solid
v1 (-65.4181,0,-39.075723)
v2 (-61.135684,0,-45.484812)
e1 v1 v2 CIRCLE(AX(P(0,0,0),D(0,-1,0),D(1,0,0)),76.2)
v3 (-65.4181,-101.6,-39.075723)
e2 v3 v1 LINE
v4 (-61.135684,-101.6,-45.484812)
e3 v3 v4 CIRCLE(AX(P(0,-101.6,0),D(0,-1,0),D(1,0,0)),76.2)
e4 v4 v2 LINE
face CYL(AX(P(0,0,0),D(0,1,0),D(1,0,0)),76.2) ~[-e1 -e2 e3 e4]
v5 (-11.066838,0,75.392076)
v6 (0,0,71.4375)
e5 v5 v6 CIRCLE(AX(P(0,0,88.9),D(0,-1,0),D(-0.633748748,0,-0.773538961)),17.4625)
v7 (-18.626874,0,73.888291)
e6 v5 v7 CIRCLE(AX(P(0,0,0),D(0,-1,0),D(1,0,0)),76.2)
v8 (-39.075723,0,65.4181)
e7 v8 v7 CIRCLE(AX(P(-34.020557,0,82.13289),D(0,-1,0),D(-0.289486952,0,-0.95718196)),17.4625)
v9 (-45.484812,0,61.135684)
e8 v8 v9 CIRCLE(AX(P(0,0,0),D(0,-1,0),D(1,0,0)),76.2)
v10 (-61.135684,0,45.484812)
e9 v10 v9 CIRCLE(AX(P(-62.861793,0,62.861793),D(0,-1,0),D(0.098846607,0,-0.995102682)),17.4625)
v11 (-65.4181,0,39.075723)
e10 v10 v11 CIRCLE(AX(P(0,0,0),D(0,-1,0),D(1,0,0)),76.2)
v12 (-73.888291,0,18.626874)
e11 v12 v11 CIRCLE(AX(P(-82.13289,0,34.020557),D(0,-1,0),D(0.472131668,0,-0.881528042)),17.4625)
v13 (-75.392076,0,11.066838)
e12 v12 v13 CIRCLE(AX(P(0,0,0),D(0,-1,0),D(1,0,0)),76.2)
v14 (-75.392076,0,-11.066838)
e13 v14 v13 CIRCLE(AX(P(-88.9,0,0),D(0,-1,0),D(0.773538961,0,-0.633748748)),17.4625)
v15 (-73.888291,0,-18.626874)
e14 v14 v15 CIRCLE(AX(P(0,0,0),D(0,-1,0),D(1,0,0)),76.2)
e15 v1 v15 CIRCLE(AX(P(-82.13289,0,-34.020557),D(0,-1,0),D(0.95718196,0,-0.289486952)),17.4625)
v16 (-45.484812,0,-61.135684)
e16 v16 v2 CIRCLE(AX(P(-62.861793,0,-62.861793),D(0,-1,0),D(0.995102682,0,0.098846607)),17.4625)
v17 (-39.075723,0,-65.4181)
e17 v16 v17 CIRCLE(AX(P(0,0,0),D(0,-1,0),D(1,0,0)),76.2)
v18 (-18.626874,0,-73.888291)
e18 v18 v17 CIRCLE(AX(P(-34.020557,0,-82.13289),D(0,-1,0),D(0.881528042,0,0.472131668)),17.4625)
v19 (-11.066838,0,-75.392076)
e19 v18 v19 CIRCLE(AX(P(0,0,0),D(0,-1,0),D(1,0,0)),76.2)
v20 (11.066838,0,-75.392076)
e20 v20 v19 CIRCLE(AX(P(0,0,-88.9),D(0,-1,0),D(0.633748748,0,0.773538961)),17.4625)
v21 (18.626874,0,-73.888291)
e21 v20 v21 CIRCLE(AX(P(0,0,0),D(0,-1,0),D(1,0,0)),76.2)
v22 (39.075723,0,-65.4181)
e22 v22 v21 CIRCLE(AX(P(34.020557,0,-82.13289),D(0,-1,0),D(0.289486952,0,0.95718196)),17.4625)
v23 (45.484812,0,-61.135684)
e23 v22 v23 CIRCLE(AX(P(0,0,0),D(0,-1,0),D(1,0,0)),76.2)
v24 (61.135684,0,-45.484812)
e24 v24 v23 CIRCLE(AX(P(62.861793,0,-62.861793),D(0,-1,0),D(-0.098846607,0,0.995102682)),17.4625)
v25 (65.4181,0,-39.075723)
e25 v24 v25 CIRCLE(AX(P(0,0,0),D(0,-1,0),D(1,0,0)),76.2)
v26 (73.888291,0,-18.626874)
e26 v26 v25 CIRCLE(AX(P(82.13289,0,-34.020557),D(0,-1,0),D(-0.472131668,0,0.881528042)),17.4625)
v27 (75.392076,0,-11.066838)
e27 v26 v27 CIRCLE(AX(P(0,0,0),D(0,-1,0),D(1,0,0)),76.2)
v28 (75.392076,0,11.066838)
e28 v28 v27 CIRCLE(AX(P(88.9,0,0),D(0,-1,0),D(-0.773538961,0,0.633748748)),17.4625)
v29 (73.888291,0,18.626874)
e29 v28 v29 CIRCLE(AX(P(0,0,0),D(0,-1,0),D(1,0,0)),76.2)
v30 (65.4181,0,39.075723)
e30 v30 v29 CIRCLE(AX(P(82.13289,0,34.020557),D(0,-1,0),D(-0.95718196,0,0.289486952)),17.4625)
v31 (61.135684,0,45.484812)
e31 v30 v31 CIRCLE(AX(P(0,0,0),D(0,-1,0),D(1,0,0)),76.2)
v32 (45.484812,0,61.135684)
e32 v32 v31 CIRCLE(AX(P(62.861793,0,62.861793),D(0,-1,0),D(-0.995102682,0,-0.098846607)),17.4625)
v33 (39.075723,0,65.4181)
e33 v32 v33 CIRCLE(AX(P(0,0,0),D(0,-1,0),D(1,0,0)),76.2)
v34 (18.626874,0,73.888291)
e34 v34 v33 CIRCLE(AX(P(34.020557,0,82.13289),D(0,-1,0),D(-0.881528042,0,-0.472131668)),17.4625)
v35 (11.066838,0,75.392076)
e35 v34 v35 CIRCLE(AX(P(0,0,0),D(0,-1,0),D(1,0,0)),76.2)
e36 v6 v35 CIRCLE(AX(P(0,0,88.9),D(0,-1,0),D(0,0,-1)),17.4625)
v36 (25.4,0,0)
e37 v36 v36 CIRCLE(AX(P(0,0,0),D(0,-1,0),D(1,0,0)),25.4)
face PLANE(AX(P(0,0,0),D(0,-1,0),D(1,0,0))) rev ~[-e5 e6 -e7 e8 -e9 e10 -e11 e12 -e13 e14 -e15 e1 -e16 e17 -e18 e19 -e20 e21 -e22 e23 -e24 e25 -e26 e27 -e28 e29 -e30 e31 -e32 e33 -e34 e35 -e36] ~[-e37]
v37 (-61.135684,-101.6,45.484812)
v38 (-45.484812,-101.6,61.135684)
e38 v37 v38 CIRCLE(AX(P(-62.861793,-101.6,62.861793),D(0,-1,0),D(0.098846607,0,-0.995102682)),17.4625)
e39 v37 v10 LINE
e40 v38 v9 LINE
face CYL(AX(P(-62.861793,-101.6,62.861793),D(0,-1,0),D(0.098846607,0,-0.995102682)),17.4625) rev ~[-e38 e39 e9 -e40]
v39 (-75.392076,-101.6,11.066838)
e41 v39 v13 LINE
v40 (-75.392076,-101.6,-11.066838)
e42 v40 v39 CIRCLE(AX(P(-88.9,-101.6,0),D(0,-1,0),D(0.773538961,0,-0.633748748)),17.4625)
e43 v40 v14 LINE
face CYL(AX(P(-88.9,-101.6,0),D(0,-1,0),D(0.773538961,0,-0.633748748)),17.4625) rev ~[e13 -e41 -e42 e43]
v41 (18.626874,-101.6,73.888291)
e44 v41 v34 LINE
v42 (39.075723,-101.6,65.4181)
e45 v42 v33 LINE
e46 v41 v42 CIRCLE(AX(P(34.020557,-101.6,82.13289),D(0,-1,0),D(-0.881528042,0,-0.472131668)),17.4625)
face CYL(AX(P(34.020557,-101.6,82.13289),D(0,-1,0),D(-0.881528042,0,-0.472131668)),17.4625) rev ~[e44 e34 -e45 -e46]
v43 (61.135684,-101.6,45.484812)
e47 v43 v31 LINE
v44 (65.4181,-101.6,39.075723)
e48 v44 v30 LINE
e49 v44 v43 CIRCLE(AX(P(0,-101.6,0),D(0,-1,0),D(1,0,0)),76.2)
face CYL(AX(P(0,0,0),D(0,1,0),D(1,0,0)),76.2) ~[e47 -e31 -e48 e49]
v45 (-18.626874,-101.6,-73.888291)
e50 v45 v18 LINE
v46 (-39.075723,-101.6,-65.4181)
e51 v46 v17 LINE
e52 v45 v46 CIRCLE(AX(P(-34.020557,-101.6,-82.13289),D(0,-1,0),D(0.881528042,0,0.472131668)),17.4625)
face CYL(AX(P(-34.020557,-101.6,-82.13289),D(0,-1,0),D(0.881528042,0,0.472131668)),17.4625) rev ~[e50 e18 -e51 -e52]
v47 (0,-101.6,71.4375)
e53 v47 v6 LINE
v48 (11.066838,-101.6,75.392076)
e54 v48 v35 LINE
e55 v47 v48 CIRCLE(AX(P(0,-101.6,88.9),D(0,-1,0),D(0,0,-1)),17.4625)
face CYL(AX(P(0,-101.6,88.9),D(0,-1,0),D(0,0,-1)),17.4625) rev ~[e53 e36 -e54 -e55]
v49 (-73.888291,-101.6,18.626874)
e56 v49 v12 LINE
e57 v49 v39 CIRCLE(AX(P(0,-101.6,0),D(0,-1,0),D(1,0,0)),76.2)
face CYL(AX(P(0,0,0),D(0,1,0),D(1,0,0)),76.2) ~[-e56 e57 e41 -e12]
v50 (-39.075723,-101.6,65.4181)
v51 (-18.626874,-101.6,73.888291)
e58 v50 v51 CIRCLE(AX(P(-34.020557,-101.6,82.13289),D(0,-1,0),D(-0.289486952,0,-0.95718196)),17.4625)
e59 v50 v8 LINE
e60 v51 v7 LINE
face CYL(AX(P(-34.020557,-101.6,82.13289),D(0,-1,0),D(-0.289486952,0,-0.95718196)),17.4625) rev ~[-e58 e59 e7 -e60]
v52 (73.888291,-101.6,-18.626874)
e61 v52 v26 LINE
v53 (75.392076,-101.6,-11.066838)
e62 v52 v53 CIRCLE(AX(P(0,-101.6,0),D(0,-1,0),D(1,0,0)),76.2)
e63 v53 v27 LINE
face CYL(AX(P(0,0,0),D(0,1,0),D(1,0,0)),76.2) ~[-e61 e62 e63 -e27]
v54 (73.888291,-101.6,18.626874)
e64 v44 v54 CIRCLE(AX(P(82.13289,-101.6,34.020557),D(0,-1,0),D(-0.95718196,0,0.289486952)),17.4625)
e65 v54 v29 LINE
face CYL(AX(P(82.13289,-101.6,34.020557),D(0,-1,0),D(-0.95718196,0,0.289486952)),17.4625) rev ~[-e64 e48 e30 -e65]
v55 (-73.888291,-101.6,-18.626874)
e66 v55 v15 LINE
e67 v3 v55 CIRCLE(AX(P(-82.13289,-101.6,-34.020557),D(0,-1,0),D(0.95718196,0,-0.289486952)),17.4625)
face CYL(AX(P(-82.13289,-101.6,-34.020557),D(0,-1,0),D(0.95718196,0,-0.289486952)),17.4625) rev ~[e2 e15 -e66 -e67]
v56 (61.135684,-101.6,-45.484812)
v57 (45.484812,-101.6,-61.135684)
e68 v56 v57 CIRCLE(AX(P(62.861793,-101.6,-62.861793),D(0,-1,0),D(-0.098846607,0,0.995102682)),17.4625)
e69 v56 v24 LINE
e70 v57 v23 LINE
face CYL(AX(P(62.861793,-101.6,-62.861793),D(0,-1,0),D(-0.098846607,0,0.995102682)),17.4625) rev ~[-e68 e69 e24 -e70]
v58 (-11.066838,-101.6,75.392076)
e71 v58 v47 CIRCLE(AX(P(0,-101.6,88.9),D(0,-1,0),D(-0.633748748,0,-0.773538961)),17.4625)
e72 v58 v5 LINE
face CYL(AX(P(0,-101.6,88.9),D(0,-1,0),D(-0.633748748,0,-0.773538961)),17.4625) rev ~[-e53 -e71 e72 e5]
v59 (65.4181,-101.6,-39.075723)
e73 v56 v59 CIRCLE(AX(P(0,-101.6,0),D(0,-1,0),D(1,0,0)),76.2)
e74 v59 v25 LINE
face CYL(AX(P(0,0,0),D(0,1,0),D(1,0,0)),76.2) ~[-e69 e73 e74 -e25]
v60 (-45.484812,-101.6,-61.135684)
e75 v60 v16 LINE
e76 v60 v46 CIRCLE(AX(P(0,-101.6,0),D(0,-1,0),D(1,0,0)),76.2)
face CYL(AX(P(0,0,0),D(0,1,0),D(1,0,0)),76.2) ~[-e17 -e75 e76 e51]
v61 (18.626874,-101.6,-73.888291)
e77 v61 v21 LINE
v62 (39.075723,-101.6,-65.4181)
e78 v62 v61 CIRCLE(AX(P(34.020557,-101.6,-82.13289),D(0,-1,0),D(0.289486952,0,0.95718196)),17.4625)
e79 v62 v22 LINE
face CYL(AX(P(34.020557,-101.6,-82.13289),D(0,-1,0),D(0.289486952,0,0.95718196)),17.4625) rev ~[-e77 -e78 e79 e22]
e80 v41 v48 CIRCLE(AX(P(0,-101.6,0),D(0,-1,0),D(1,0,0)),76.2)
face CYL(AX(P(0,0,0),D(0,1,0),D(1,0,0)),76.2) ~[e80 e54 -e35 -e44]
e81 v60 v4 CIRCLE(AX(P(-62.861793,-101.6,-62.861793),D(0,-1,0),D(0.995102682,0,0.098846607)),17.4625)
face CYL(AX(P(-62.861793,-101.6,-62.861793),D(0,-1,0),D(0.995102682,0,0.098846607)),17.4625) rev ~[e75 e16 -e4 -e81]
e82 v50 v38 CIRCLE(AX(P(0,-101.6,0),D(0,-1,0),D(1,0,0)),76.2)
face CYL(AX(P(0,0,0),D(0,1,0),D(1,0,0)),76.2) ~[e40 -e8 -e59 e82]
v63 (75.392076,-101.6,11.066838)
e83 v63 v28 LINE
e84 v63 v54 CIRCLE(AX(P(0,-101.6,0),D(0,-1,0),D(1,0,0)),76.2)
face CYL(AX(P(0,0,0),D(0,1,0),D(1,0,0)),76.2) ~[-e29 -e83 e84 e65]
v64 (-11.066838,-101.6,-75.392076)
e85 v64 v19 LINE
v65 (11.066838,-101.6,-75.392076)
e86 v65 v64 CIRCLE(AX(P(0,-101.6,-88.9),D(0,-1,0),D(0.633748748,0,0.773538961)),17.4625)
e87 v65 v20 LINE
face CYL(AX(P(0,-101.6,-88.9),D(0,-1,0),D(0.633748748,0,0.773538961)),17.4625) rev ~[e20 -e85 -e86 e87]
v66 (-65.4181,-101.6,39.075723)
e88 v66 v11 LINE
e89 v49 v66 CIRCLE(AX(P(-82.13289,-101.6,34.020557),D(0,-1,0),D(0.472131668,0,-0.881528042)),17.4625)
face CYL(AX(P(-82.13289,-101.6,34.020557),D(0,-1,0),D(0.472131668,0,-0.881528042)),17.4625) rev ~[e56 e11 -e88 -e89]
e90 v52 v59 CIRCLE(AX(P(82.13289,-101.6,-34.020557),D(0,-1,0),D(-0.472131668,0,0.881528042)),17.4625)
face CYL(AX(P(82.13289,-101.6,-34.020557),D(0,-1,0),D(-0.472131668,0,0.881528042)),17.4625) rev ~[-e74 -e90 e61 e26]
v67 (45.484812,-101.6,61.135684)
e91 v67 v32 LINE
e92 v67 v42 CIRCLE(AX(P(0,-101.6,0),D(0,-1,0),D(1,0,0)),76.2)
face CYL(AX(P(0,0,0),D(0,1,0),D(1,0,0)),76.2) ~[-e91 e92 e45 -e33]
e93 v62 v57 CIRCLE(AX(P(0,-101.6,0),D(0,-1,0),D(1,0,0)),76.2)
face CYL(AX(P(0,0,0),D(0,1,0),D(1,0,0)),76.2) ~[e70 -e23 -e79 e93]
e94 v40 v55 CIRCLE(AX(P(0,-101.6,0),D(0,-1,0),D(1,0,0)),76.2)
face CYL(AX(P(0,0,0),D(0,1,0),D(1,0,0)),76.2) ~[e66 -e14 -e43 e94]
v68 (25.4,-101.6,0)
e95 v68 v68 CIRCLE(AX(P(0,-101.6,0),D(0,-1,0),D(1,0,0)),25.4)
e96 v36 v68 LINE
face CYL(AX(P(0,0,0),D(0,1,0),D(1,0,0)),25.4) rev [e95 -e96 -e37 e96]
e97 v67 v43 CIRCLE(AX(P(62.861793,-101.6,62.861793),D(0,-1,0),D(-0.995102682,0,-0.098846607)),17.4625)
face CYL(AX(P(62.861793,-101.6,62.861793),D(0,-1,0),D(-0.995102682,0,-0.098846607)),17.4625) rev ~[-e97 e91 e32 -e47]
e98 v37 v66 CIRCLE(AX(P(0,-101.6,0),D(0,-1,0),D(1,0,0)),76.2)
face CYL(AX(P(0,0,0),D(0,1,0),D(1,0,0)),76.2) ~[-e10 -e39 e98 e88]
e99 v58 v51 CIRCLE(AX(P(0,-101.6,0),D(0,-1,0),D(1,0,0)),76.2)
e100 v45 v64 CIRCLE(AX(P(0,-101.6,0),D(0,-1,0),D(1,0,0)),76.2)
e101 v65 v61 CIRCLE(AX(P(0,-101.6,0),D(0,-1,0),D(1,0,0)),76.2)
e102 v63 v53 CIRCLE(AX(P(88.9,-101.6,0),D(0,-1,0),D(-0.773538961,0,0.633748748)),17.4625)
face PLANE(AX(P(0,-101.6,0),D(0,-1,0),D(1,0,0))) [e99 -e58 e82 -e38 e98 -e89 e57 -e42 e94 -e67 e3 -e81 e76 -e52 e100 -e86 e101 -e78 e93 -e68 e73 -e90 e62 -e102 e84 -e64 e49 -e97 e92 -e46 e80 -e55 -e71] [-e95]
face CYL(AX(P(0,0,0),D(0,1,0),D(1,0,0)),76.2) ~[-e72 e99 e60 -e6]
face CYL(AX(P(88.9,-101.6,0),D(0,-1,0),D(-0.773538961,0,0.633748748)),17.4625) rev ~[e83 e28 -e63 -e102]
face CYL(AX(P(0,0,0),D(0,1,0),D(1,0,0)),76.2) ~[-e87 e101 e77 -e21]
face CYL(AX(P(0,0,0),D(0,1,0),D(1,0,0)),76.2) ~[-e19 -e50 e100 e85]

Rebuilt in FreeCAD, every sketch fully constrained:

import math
import FreeCAD as App
import Part
import Sketcher
Q = App.Units.Quantity

doc = App.newDocument("Part")
params = doc.addObject("Spreadsheet::Sheet", "Params")
for row, (alias, value) in enumerate([
    ("sketch1_diameter", "6 in"),
    ("sketch1_diameter2", "2 in"),
    ("pad1_length", "4 in"),
    ("sketch2_radius", "3 in"),
    ("sketch2_radius2", "0.6875 in"),
    ("pocket1_length", "4 in"),
], start=1):
    params.set(f"A{row}", alias)
    params.set(f"B{row}", "=" + value)
    params.setAlias(f"B{row}", alias)

body = doc.addObject("PartDesign::Body", "Body")

sketch1 = doc.addObject("Sketcher::SketchObject", "Sketch")
body.addObject(sketch1)
sketch1.AttachmentSupport = (doc.XZ_Plane, [""])
sketch1.MapMode = "FlatFace"
sketch1.addGeometry([
    Part.Circle(App.Vector(0, 0, 0), App.Vector(0, 0, 1), 76),
    Part.Circle(App.Vector(0, 0, 0), App.Vector(0, 0, 1), 25),
], False)
sketch1.addConstraint([
    Sketcher.Constraint("Coincident", 0, 3, -1, 1),
    Sketcher.Constraint("Coincident", 1, 3, -1, 1),
    Sketcher.Constraint("Diameter", 0, Q("6 in")),
    Sketcher.Constraint("Diameter", 1, Q("2 in")),
])
sketch1.setExpression("Constraints[2]", "Params.sketch1_diameter")
sketch1.setExpression("Constraints[3]", "Params.sketch1_diameter2")
pad1 = doc.addObject("PartDesign::Pad", "Pad")
body.addObject(pad1)
pad1.Profile = sketch1
pad1.setExpression("Length", "Params.pad1_length")

sketch2 = doc.addObject("Sketcher::SketchObject", "Sketch001")
body.addObject(sketch2)
sketch2.AttachmentSupport = (doc.XZ_Plane, [""])
sketch2.MapMode = "FlatFace"
sketch2.AttachmentOffset = App.Placement(App.Vector(0, 0, 4 * 25.4), App.Rotation())
sketch2.addGeometry([
    Part.ArcOfCircle(Part.Circle(App.Vector(0, 0, 0), App.Vector(0, 0, 1), 76), math.radians(59.15), math.radians(75.85)),
    Part.ArcOfCircle(Part.Circle(App.Vector(34, 82, 0), App.Vector(0, 0, 1), 17), math.radians(-152), math.radians(-73)),
    Part.ArcOfCircle(Part.Circle(App.Vector(0, 0, 0), App.Vector(0, 0, 1), 76), math.radians(36.65), math.radians(53.35)),
    Part.ArcOfCircle(Part.Circle(App.Vector(63, 63, 0), App.Vector(0, 0, 1), 17), math.radians(-174), math.radians(-96)),
    Part.ArcOfCircle(Part.Circle(App.Vector(0, 0, 0), App.Vector(0, 0, 1), 76), math.radians(14.15), math.radians(30.85)),
    Part.ArcOfCircle(Part.Circle(App.Vector(82, 34, 0), App.Vector(0, 0, 1), 17), math.radians(163), math.radians(242)),
    Part.ArcOfCircle(Part.Circle(App.Vector(0, 0, 0), App.Vector(0, 0, 1), 76), math.radians(0), math.radians(8.35)),
    Part.ArcOfCircle(Part.Circle(App.Vector(89, 0, 0), App.Vector(0, 0, 1), 17), math.radians(141), math.radians(219)),
    Part.ArcOfCircle(Part.Circle(App.Vector(0, 0, 0), App.Vector(0, 0, 1), 76), math.radians(-8.35), math.radians(0)),
    Part.ArcOfCircle(Part.Circle(App.Vector(0, 0, 0), App.Vector(0, 0, 1), 76), math.radians(-30.85), math.radians(-14.15)),
    Part.ArcOfCircle(Part.Circle(App.Vector(82, -34, 0), App.Vector(0, 0, 1), 17), math.radians(118), math.radians(197)),
    Part.ArcOfCircle(Part.Circle(App.Vector(0, 0, 0), App.Vector(0, 0, 1), 76), math.radians(-53.35), math.radians(-36.65)),
    Part.ArcOfCircle(Part.Circle(App.Vector(63, -63, 0), App.Vector(0, 0, 1), 17), math.radians(96), math.radians(174)),
    Part.ArcOfCircle(Part.Circle(App.Vector(0, 0, 0), App.Vector(0, 0, 1), 76), math.radians(-75.85), math.radians(-59.15)),
    Part.ArcOfCircle(Part.Circle(App.Vector(34, -82, 0), App.Vector(0, 0, 1), 17), math.radians(73), math.radians(152)),
    Part.ArcOfCircle(Part.Circle(App.Vector(0, -89, 0), App.Vector(0, 0, 1), 17), math.radians(51), math.radians(129)),
    Part.ArcOfCircle(Part.Circle(App.Vector(0, 0, 0), App.Vector(0, 0, 1), 76), math.radians(-98.35), math.radians(-81.65)),
    Part.ArcOfCircle(Part.Circle(App.Vector(-34, -82, 0), App.Vector(0, 0, 1), 17), math.radians(28), math.radians(107)),
    Part.ArcOfCircle(Part.Circle(App.Vector(0, 0, 0), App.Vector(0, 0, 1), 76), math.radians(-120.85), math.radians(-104.15)),
    Part.ArcOfCircle(Part.Circle(App.Vector(-63, -63, 0), App.Vector(0, 0, 1), 17), math.radians(6), math.radians(84)),
    Part.ArcOfCircle(Part.Circle(App.Vector(0, 0, 0), App.Vector(0, 0, 1), 76), math.radians(-143.35), math.radians(-126.65)),
    Part.ArcOfCircle(Part.Circle(App.Vector(-82, -34, 0), App.Vector(0, 0, 1), 17), math.radians(-17), math.radians(62)),
    Part.ArcOfCircle(Part.Circle(App.Vector(0, 0, 0), App.Vector(0, 0, 1), 76), math.radians(-165.85), math.radians(-149.15)),
    Part.ArcOfCircle(Part.Circle(App.Vector(-89, 0, 0), App.Vector(0, 0, 1), 17), math.radians(-39), math.radians(39)),
    Part.ArcOfCircle(Part.Circle(App.Vector(0, 0, 0), App.Vector(0, 0, 1), 76), math.radians(171.65), math.radians(188.35)),
    Part.ArcOfCircle(Part.Circle(App.Vector(-82, 34, 0), App.Vector(0, 0, 1), 17), math.radians(-62), math.radians(17)),
    Part.ArcOfCircle(Part.Circle(App.Vector(0, 0, 0), App.Vector(0, 0, 1), 76), math.radians(149.15), math.radians(165.85)),
    Part.ArcOfCircle(Part.Circle(App.Vector(-63, 63, 0), App.Vector(0, 0, 1), 17), math.radians(-84), math.radians(-6)),
    Part.ArcOfCircle(Part.Circle(App.Vector(0, 0, 0), App.Vector(0, 0, 1), 76), math.radians(126.65), math.radians(143.35)),
    Part.ArcOfCircle(Part.Circle(App.Vector(-34, 82, 0), App.Vector(0, 0, 1), 17), math.radians(-107), math.radians(-28)),
    Part.ArcOfCircle(Part.Circle(App.Vector(0, 0, 0), App.Vector(0, 0, 1), 76), math.radians(104.15), math.radians(120.85)),
    Part.ArcOfCircle(Part.Circle(App.Vector(0, 89, 0), App.Vector(0, 0, 1), 17), math.radians(-90), math.radians(-51)),
    Part.ArcOfCircle(Part.Circle(App.Vector(0, 0, 0), App.Vector(0, 0, 1), 76), math.radians(81.65), math.radians(90)),
    Part.ArcOfCircle(Part.Circle(App.Vector(0, 0, 0), App.Vector(0, 0, 1), 76), math.radians(90), math.radians(98.35)),
    Part.ArcOfCircle(Part.Circle(App.Vector(0, 89, 0), App.Vector(0, 0, 1), 17), math.radians(-129), math.radians(-90)),
], False)
sketch2.addConstraint([
    Sketcher.Constraint("Coincident", 0, 1, 1, 2),
    Sketcher.Constraint("Coincident", 1, 1, 0, 2),
    Sketcher.Constraint("Coincident", 2, 1, 3, 2),
    Sketcher.Constraint("Coincident", 3, 1, 2, 2),
    Sketcher.Constraint("Coincident", 4, 1, 5, 2),
    Sketcher.Constraint("Coincident", 5, 1, 4, 2),
    Sketcher.Constraint("Coincident", 6, 2, 7, 1),
    Sketcher.Constraint("Coincident", 7, 2, 8, 1),
    Sketcher.Constraint("Tangent", 8, 2, 6, 1),
    Sketcher.Constraint("Coincident", 9, 1, 10, 2),
    Sketcher.Constraint("Coincident", 10, 1, 9, 2),
    Sketcher.Constraint("Coincident", 11, 1, 12, 2),
    Sketcher.Constraint("Coincident", 12, 1, 11, 2),
    Sketcher.Constraint("Coincident", 13, 1, 14, 2),
    Sketcher.Constraint("Coincident", 14, 1, 13, 2),
    Sketcher.Constraint("Coincident", 15, 1, 16, 2),
    Sketcher.Constraint("Coincident", 16, 1, 15, 2),
    Sketcher.Constraint("Coincident", 17, 1, 18, 2),
    Sketcher.Constraint("Coincident", 18, 1, 17, 2),
    Sketcher.Constraint("Coincident", 19, 1, 20, 2),
    Sketcher.Constraint("Coincident", 20, 1, 19, 2),
    Sketcher.Constraint("Coincident", 21, 1, 22, 2),
    Sketcher.Constraint("Coincident", 22, 1, 21, 2),
    Sketcher.Constraint("Coincident", 23, 1, 24, 2),
    Sketcher.Constraint("Coincident", 24, 1, 23, 2),
    Sketcher.Constraint("Coincident", 25, 1, 26, 2),
    Sketcher.Constraint("Coincident", 26, 1, 25, 2),
    Sketcher.Constraint("Coincident", 27, 1, 28, 2),
    Sketcher.Constraint("Coincident", 28, 1, 27, 2),
    Sketcher.Constraint("Coincident", 29, 1, 30, 2),
    Sketcher.Constraint("Coincident", 30, 1, 29, 2),
    Sketcher.Constraint("Coincident", 31, 2, 32, 1),
    Sketcher.Constraint("Tangent", 32, 2, 33, 1),
    Sketcher.Constraint("Coincident", 33, 2, 34, 1),
    Sketcher.Constraint("Tangent", 34, 2, 31, 1),
    Sketcher.Constraint("Coincident", 0, 3, -1, 1),
    Sketcher.Constraint("Coincident", 2, 3, -1, 1),
    Sketcher.Constraint("Coincident", 4, 3, -1, 1),
    Sketcher.Constraint("Coincident", 6, 3, -1, 1),
    Sketcher.Constraint("Coincident", 9, 3, -1, 1),
    Sketcher.Constraint("Coincident", 11, 3, -1, 1),
    Sketcher.Constraint("Coincident", 13, 3, -1, 1),
    Sketcher.Constraint("Coincident", 16, 3, -1, 1),
    Sketcher.Constraint("Coincident", 18, 3, -1, 1),
    Sketcher.Constraint("Coincident", 20, 3, -1, 1),
    Sketcher.Constraint("Coincident", 22, 3, -1, 1),
    Sketcher.Constraint("Coincident", 24, 3, -1, 1),
    Sketcher.Constraint("Coincident", 26, 3, -1, 1),
    Sketcher.Constraint("Coincident", 28, 3, -1, 1),
    Sketcher.Constraint("Coincident", 30, 3, -1, 1),
    Sketcher.Constraint("Coincident", 32, 3, -1, 1),
    Sketcher.Constraint("Equal", 0, 2),
    Sketcher.Constraint("Equal", 1, 3),
    Sketcher.Constraint("Equal", 2, 4),
    Sketcher.Constraint("Equal", 3, 5),
    Sketcher.Constraint("Equal", 4, 6),
    Sketcher.Constraint("Equal", 5, 7),
    Sketcher.Constraint("Equal", 6, 8),
    Sketcher.Constraint("Equal", 8, 9),
    Sketcher.Constraint("Equal", 7, 10),
    Sketcher.Constraint("Equal", 9, 11),
    Sketcher.Constraint("Equal", 10, 12),
    Sketcher.Constraint("Equal", 11, 13),
    Sketcher.Constraint("Equal", 12, 14),
    Sketcher.Constraint("Equal", 14, 15),
    Sketcher.Constraint("Equal", 13, 16),
    Sketcher.Constraint("Equal", 15, 17),
    Sketcher.Constraint("Equal", 16, 18),
    Sketcher.Constraint("Equal", 17, 19),
    Sketcher.Constraint("Equal", 18, 20),
    Sketcher.Constraint("Equal", 19, 21),
    Sketcher.Constraint("Equal", 20, 22),
    Sketcher.Constraint("Equal", 21, 23),
    Sketcher.Constraint("Equal", 22, 24),
    Sketcher.Constraint("Equal", 23, 25),
    Sketcher.Constraint("Equal", 24, 26),
    Sketcher.Constraint("Equal", 25, 27),
    Sketcher.Constraint("Equal", 26, 28),
    Sketcher.Constraint("Equal", 27, 29),
    Sketcher.Constraint("Equal", 28, 30),
    Sketcher.Constraint("Equal", 29, 31),
    Sketcher.Constraint("Equal", 30, 32),
    Sketcher.Constraint("Equal", 32, 33),
    Sketcher.Constraint("Equal", 31, 34),
    Sketcher.Constraint("Symmetric", 1, 3, 17, 3, -1, 1),
    Sketcher.Constraint("Symmetric", 3, 3, 19, 3, -1, 1),
    Sketcher.Constraint("Symmetric", 5, 3, 21, 3, -1, 1),
    Sketcher.Constraint("Symmetric", 7, 3, 23, 3, -1, 1),
    Sketcher.Constraint("Symmetric", 10, 3, 25, 3, -1, 1),
    Sketcher.Constraint("Symmetric", 12, 3, 27, 3, -1, 1),
    Sketcher.Constraint("Symmetric", 14, 3, 29, 3, -1, 1),
    Sketcher.Constraint("Symmetric", 15, 3, 31, 3, -1, 1),
    Sketcher.Constraint("Symmetric", 14, 3, 17, 3, -2),
    Sketcher.Constraint("Symmetric", 12, 3, 19, 3, -2),
    Sketcher.Constraint("Symmetric", 10, 3, 21, 3, -2),
    Sketcher.Constraint("PointOnObject", 7, 3, -1),
    Sketcher.Constraint("PointOnObject", 15, 3, -2),
    Sketcher.Constraint("PointOnObject", 8, 2, -1),
    Sketcher.Constraint("PointOnObject", 32, 2, -2),
    Sketcher.Constraint("PointOnObject", 34, 2, -2),
    Sketcher.Constraint("Radius", 0, Q("3 in")),
    Sketcher.Constraint("Radius", 1, Q("0.6875 in")),
    Sketcher.Constraint("DistanceX", -1, 1, 7, 3, Q("3.5 in")),
    Sketcher.Constraint("DistanceY", 15, 3, -1, 1, Q("3.5 in")),
    Sketcher.Constraint("DistanceY", -1, 1, 0, 1, Q("65.4181 mm")),
    Sketcher.Constraint("DistanceX", -1, 1, 5, 1, Q("65.4181 mm")),
    Sketcher.Constraint("DistanceY", -1, 1, 1, 3, Q("82.13289 mm")),
    Sketcher.Constraint("DistanceX", -1, 1, 5, 3, Q("82.13289 mm")),
    Sketcher.Constraint("DistanceX", -1, 1, 3, 3, Q("62.861793 mm")),
    Sketcher.Constraint("DistanceY", -1, 1, 3, 3, Q("62.861793 mm")),
])
sketch2.setExpression("Constraints[100]", "Params.sketch2_radius")
sketch2.setExpression("Constraints[101]", "Params.sketch2_radius2")
pocket1 = doc.addObject("PartDesign::Pocket", "Pocket")
body.addObject(pocket1)
pocket1.Profile = sketch2
pocket1.setExpression("Length", "Params.pocket1_length")

doc.recompute()
